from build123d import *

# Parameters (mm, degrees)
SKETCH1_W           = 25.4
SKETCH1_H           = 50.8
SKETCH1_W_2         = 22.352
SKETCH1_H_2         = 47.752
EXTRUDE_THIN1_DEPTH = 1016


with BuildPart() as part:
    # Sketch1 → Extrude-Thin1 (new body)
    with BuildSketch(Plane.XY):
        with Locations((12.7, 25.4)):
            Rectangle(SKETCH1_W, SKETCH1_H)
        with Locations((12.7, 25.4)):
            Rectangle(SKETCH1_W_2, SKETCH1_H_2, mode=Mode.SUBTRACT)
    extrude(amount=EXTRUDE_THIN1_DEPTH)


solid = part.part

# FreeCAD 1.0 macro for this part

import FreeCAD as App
import Part
import Sketcher
from FreeCAD import Vector
Q = App.Units.Quantity


def add_polygon(sketch, points):
    """Adds a closed chain of lines whose ends are joined by coincident constraints."""
    first, n = sketch.GeometryCount, len(points)
    for a, b in zip(points, points[1:] + points[:1]):
        sketch.addGeometry(Part.LineSegment(App.Vector(*a, 0), App.Vector(*b, 0)), False)
    for i in range(n):
        sketch.addConstraint(Sketcher.Constraint("Coincident", first + i, 2, first + (i + 1) % n, 1))

doc = App.newDocument("Part")
body = doc.addObject("PartDesign::Body", "Body")

# Sketch on XY plane
sketch1 = doc.addObject("Sketcher::SketchObject", "Sketch")
body.addObject(sketch1)
sketch1.AttachmentSupport = (doc.XY_Plane, [""])
sketch1.MapMode = "FlatFace"
add_polygon(sketch1, [(0, 50.8), (0, 0), (25.4, 0), (25.4, 50.8)])  # lines 0-3
add_polygon(sketch1, [(23.876, 1.524), (1.524, 1.524), (1.524, 49.276), (23.876, 49.276)])  # lines 4-7
sketch1.addConstraint([
    Sketcher.Constraint("Vertical", 0),
    Sketcher.Constraint("Horizontal", 1),
    Sketcher.Constraint("Vertical", 2),
    Sketcher.Constraint("Horizontal", 3),
    Sketcher.Constraint("Horizontal", 4),
    Sketcher.Constraint("Vertical", 5),
    Sketcher.Constraint("Horizontal", 6),
    Sketcher.Constraint("Vertical", 7),
    Sketcher.Constraint("Coincident", 0, 2, -1, 1),
    Sketcher.Constraint("DistanceX", 1, 1, 1, 2, Q("1 in")),
    Sketcher.Constraint("DistanceY", 0, 2, 0, 1, Q("2 in")),
    Sketcher.Constraint("DistanceX", 4, 2, 4, 1, Q("0.88 in")),
    Sketcher.Constraint("DistanceY", 5, 1, 5, 2, Q("1.88 in")),
    Sketcher.Constraint("DistanceX", -1, 1, 4, 2, Q("0.06 in")),
    Sketcher.Constraint("DistanceY", -1, 1, 4, 2, Q("0.06 in")),
])
pad1 = doc.addObject("PartDesign::Pad", "Pad")
body.addObject(pad1)
pad1.Profile = sketch1
pad1.Length = Q("40 in")

doc.recompute()
